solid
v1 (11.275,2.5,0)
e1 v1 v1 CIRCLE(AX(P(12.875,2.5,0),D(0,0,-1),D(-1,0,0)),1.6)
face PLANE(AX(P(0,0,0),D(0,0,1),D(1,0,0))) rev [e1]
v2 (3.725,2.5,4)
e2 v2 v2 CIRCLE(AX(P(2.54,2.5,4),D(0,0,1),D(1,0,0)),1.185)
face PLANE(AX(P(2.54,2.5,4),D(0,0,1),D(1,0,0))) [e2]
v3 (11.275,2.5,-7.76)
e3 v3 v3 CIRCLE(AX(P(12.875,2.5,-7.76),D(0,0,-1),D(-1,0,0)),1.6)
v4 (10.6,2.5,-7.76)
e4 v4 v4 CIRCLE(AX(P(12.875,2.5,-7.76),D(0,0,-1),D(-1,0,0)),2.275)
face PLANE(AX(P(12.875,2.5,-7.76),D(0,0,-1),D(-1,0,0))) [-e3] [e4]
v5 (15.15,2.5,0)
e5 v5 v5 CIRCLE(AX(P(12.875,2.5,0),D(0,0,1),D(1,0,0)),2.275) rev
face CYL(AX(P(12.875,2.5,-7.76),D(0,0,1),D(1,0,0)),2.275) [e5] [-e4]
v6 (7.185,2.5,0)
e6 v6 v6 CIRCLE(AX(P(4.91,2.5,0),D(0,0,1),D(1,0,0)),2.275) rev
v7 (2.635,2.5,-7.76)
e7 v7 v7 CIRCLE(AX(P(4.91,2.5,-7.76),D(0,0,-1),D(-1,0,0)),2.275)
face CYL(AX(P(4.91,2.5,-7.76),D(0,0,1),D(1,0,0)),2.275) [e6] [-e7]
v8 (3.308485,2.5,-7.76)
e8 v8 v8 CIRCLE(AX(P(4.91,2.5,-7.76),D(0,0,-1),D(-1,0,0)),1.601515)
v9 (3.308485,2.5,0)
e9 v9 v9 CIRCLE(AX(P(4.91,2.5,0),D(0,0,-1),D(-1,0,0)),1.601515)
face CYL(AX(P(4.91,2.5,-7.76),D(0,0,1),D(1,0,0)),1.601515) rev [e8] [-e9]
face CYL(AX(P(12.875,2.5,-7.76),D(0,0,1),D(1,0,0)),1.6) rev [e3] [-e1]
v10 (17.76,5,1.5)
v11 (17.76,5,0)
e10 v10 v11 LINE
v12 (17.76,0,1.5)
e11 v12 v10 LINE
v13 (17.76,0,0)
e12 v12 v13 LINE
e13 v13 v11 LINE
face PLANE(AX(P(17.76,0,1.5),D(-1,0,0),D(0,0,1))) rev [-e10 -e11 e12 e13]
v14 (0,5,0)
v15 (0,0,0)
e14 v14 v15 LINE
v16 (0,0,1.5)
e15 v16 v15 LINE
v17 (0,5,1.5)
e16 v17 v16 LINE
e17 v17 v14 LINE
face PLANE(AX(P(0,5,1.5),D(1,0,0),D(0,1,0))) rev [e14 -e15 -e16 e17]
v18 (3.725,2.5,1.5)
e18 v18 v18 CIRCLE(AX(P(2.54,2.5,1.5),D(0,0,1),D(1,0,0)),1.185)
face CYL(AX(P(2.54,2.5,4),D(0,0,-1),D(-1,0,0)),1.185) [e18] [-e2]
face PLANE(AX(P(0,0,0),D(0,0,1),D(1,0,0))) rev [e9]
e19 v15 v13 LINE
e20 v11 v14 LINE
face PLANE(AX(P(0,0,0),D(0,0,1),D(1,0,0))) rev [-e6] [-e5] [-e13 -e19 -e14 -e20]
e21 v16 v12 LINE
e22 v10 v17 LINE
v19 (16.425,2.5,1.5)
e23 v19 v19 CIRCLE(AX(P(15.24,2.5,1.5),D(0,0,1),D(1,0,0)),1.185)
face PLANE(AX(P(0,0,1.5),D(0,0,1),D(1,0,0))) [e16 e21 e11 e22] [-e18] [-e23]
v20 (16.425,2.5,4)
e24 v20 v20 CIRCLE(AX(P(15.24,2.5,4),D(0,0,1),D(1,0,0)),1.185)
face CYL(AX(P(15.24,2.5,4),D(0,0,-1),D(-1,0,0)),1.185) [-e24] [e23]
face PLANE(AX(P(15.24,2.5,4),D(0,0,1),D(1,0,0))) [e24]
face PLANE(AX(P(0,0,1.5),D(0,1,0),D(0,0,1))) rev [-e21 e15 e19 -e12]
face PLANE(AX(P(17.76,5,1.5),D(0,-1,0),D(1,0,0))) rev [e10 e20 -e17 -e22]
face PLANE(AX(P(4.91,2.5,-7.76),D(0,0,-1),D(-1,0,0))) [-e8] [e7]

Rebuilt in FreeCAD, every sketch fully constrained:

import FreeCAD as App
import Part
import Sketcher

V = App.Vector
Q = App.Units.Quantity


def add_polygon(sketch, points):
    """Adds a closed chain of lines whose ends are joined by coincident constraints."""
    first, n = sketch.GeometryCount, len(points)
    for a, b in zip(points, points[1:] + points[:1]):
        sketch.addGeometry(Part.LineSegment(App.Vector(*a, 0), App.Vector(*b, 0)), False)
    for i in range(n):
        sketch.addConstraint(Sketcher.Constraint("Coincident", first + i, 2, first + (i + 1) % n, 1))

doc = App.newDocument("Part")
body = doc.addObject("PartDesign::Body", "Body")

# Sketch on XY plane
sketch1 = body.newObject("Sketcher::SketchObject", "Sketch")
sketch1.AttachmentSupport = (doc.getObject("XY_Plane"), [""])
sketch1.MapMode = "FlatFace"
add_polygon(sketch1, [(0, 5), (0, 0), (18, 0), (18, 5)])  # lines 0-3
sketch1.addConstraint([
    Sketcher.Constraint("Vertical", 0),
    Sketcher.Constraint("Horizontal", 1),
    Sketcher.Constraint("Vertical", 2),
    Sketcher.Constraint("Horizontal", 3),
    Sketcher.Constraint("Coincident", 0, 2, -1, 1),
    Sketcher.Constraint("DistanceY", 0, 2, 0, 1, Q("5 mm")),
    Sketcher.Constraint("DistanceX", 1, 1, 1, 2, Q("17.76 mm")),
])
pad1 = body.newObject("PartDesign::Pad", "Pad")
pad1.Profile = sketch1
pad1.Length = 1.5

# Sketch on XY plane
sketch2 = body.newObject("Sketcher::SketchObject", "Sketch001")
sketch2.AttachmentSupport = (doc.getObject("XY_Plane"), [""])
sketch2.MapMode = "FlatFace"
sketch2.AttachmentOffset = App.Placement(V(0, 0, 1.5), App.Rotation())
sketch2.addGeometry([
    Part.Circle(V(2.5, 2.5, 0), V(0, 0, 1), 1.2),
    Part.Circle(V(15.2, 2.5, 0), V(0, 0, 1), 1.2),
], False)
sketch2.addConstraint([
    Sketcher.Constraint("Equal", 0, 1),
    Sketcher.Constraint("Horizontal", 0, 3, 1, 3),
    Sketcher.Constraint("Diameter", 0, Q("2.37 mm")),
    Sketcher.Constraint("DistanceY", -1, 1, 0, 3, Q("2.5 mm")),
    Sketcher.Constraint("DistanceX", 0, 3, 1, 3, Q("12.7 mm")),
    Sketcher.Constraint("DistanceX", -1, 1, 0, 3, Q("2.54 mm")),
])
pad2 = body.newObject("PartDesign::Pad", "Pad001")
pad2.Profile = sketch2
pad2.Length = 2.5

# Sketch on XY plane
sketch3 = body.newObject("Sketcher::SketchObject", "Sketch002")
sketch3.AttachmentSupport = (doc.getObject("XY_Plane"), [""])
sketch3.MapMode = "FlatFace"
sketch3.addGeometry([
    Part.Circle(V(12.9, 2.5, 0), V(0, 0, 1), 2.3),
    Part.Circle(V(12.9, 2.5, 0), V(0, 0, 1), 1.6),
    Part.Circle(V(4.9, 2.5, 0), V(0, 0, 1), 2.3),
    Part.Circle(V(4.9, 2.5, 0), V(0, 0, 1), 1.6),
], False)
sketch3.addConstraint([
    Sketcher.Constraint("Coincident", 1, 3, 0, 3),
    Sketcher.Constraint("Coincident", 3, 3, 2, 3),
    Sketcher.Constraint("Equal", 0, 2),
    Sketcher.Constraint("Horizontal", 1, 3, 2, 3),
    Sketcher.Constraint("Diameter", 1, Q("3.2 mm")),
    Sketcher.Constraint("Diameter", 0, Q("4.55 mm")),
    Sketcher.Constraint("DistanceY", -1, 1, 0, 3, Q("2.5 mm")),
    Sketcher.Constraint("Diameter", 3, Q("3.203029 mm")),
    Sketcher.Constraint("DistanceX", -1, 1, 2, 3, Q("4.91 mm")),
    Sketcher.Constraint("DistanceX", -1, 1, 0, 3, Q("12.875 mm")),
])
pad3 = body.newObject("PartDesign::Pad", "Pad002")
pad3.Profile = sketch3
pad3.Length = 7.76
pad3.Reversed = True

doc.recompute()
